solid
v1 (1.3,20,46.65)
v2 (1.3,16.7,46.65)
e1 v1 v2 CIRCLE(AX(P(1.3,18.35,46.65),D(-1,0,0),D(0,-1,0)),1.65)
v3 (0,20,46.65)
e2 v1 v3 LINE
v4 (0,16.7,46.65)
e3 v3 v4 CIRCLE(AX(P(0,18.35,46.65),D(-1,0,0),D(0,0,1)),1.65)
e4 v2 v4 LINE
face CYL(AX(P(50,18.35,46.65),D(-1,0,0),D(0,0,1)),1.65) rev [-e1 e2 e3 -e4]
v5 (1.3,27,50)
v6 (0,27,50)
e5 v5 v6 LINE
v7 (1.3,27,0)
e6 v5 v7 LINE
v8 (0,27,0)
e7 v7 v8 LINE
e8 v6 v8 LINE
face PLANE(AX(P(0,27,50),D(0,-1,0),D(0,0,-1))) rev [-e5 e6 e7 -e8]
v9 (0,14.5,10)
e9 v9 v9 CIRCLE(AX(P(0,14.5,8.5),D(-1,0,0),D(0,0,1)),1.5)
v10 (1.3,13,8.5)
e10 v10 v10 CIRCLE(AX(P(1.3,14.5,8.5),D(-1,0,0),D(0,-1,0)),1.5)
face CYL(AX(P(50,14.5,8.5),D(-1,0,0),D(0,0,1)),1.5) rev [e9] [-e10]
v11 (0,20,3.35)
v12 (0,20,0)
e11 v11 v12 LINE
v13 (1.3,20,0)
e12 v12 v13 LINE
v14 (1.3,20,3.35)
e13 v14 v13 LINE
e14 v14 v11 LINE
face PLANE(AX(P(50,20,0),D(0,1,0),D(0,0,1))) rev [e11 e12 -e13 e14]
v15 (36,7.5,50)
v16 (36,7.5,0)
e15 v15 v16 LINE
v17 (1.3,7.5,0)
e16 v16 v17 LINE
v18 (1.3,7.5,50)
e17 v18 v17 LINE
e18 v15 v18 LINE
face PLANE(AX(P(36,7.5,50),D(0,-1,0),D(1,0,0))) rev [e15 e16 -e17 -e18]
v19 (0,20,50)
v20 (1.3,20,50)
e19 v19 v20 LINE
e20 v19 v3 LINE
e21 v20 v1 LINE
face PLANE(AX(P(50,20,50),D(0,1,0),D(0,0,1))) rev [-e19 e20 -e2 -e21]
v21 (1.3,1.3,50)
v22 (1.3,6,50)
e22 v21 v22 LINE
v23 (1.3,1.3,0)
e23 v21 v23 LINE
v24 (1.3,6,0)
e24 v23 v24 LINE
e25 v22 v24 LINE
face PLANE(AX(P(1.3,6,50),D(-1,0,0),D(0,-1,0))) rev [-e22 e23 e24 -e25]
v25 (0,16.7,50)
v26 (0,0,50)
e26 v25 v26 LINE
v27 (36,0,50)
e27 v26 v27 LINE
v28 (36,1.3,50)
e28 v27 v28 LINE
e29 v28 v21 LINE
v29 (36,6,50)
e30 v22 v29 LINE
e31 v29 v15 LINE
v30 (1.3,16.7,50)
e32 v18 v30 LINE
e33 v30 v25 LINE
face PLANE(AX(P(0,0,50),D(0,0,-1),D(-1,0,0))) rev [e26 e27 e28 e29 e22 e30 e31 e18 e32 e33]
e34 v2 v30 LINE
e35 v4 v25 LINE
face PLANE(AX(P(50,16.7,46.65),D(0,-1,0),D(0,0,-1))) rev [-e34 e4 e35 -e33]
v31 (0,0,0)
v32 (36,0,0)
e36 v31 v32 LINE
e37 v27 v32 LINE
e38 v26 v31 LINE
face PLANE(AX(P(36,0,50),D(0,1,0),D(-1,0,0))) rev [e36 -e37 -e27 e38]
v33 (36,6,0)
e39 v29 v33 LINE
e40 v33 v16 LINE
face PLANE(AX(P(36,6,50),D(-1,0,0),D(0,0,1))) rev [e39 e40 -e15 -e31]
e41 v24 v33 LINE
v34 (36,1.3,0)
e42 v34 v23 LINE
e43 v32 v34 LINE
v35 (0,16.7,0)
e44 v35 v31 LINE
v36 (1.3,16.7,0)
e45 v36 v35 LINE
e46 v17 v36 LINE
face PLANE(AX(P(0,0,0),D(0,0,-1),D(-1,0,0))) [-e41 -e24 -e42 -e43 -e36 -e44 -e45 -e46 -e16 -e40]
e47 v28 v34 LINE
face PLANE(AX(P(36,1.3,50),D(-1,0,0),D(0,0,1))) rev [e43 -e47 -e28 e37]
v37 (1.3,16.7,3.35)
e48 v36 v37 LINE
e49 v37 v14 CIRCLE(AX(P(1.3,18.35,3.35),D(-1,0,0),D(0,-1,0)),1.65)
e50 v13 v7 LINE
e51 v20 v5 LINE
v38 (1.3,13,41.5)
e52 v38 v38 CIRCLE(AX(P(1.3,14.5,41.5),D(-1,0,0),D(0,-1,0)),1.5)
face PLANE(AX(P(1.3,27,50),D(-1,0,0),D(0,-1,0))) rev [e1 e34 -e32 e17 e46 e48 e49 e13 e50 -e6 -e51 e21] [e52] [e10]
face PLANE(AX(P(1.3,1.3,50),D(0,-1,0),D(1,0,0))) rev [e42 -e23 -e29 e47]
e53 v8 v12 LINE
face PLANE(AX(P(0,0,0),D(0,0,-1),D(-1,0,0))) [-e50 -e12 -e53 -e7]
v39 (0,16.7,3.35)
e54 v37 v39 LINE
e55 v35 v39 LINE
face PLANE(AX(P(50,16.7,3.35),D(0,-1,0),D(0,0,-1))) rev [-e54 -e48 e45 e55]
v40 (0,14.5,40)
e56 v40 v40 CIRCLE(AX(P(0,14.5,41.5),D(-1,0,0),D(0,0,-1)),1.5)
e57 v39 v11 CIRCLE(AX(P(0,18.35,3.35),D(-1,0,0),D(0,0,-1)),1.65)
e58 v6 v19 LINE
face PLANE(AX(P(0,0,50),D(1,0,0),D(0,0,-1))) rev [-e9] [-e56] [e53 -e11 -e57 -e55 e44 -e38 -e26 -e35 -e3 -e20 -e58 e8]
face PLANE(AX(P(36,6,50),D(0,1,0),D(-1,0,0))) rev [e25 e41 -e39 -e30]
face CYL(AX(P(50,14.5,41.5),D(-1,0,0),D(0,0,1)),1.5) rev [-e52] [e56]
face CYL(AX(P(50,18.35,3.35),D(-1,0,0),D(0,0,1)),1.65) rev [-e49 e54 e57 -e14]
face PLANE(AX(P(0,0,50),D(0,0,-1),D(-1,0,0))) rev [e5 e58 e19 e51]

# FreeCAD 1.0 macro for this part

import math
import FreeCAD as App
import Part
import Sketcher
from FreeCAD import Vector
Q = App.Units.Quantity

doc = App.newDocument("Part")
body = doc.addObject("PartDesign::Body", "Body")

# Sketch on XY plane
sketch1 = body.newObject("Sketcher::SketchObject", "Sketch")
sketch1.AttachmentSupport = (doc.getObject("XY_Plane"), [""])
sketch1.MapMode = "FlatFace"
sketch1.addGeometry([
    Part.LineSegment(Vector(0, 27, 0), Vector(0, 0, 0)),  # 0
    Part.LineSegment(Vector(0, 0, 0), Vector(36, 0, 0)),  # 1
    Part.LineSegment(Vector(36, 0, 0), Vector(36, 1.3, 0)),  # 2
    Part.LineSegment(Vector(36, 1.3, 0), Vector(1.3, 1.3, 0)),  # 3
    Part.LineSegment(Vector(1.3, 1.3, 0), Vector(1.3, 6, 0)),  # 4
    Part.LineSegment(Vector(1.3, 6, 0), Vector(36, 6, 0)),  # 5
    Part.LineSegment(Vector(36, 6, 0), Vector(36, 7.5, 0)),  # 6
    Part.LineSegment(Vector(36, 7.5, 0), Vector(1.3, 7.5, 0)),  # 7
    Part.LineSegment(Vector(1.3, 7.5, 0), Vector(1.3, 27, 0)),  # 8
    Part.LineSegment(Vector(1.3, 27, 0), Vector(0, 27, 0)),  # 9
], False)
sketch1.addConstraint([
    Sketcher.Constraint("Coincident", 0, 2, 1, 1),
    Sketcher.Constraint("Coincident", 1, 2, 2, 1),
    Sketcher.Constraint("Coincident", 2, 2, 3, 1),
    Sketcher.Constraint("Coincident", 3, 2, 4, 1),
    Sketcher.Constraint("Coincident", 4, 2, 5, 1),
    Sketcher.Constraint("Coincident", 5, 2, 6, 1),
    Sketcher.Constraint("Coincident", 6, 2, 7, 1),
    Sketcher.Constraint("Coincident", 7, 2, 8, 1),
    Sketcher.Constraint("Coincident", 8, 2, 9, 1),
    Sketcher.Constraint("Coincident", 9, 2, 0, 1),
    Sketcher.Constraint("Vertical", 0),
    Sketcher.Constraint("Horizontal", 1),
    Sketcher.Constraint("Vertical", 2),
    Sketcher.Constraint("Horizontal", 3),
    Sketcher.Constraint("Vertical", 4),
    Sketcher.Constraint("Horizontal", 5),
    Sketcher.Constraint("Vertical", 6),
    Sketcher.Constraint("Horizontal", 7),
    Sketcher.Constraint("Vertical", 8),
    Sketcher.Constraint("Horizontal", 9),
    Sketcher.Constraint("Coincident", 0, 2, -1, 1),
    Sketcher.Constraint("Vertical", 2, 2, 5, 2),
    Sketcher.Constraint("Vertical", 4, 2, 7, 2),
    Sketcher.Constraint("Equal", 9, 2),
    Sketcher.Constraint("DistanceX", 1, 1, 1, 2, Q("36 mm")),
    Sketcher.Constraint("DistanceY", 0, 2, 0, 1, Q("27 mm")),
    Sketcher.Constraint("DistanceX", 3, 2, 3, 1, Q("34.7 mm")),
    Sketcher.Constraint("DistanceY", 4, 1, 4, 2, Q("4.7 mm")),
    Sketcher.Constraint("DistanceY", 6, 1, 6, 2, Q("1.5 mm")),
])
pad1 = body.newObject("PartDesign::Pad", "Pad")
pad1.Profile = sketch1
pad1.Length = 50

# Sketch on YZ plane
sketch2 = body.newObject("Sketcher::SketchObject", "Sketch001")
sketch2.AttachmentSupport = (doc.getObject("YZ_Plane"), [""])
sketch2.MapMode = "FlatFace"
sketch2.addGeometry([
    Part.Circle(Vector(14.5, 8.5, 0), Vector(0, 0, 1), 1.5),  # 0
    Part.Circle(Vector(14.5, 41.5, 0), Vector(0, 0, 1), 1.5),  # 1
    Part.LineSegment(Vector(20, 3.4, 0), Vector(20, 0, 0)),  # 2
    Part.LineSegment(Vector(20, 0, 0), Vector(16.7, 0, 0)),  # 3
    Part.LineSegment(Vector(16.7, 0, 0), Vector(16.7, 3.4, 0)),  # 4
    Part.ArcOfCircle(Part.Circle(Vector(18.4, 3.4, 0), Vector(0, 0, 1), 1.6), math.radians(0), math.radians(180)),  # 5
    Part.LineSegment(Vector(16.7, 50, 0), Vector(20, 50, 0)),  # 6
    Part.LineSegment(Vector(20, 50, 0), Vector(20, 46.6, 0)),  # 7
    Part.ArcOfCircle(Part.Circle(Vector(18.4, 46.6, 0), Vector(0, 0, 1), 1.6), math.radians(180), math.radians(360)),  # 8
    Part.LineSegment(Vector(16.7, 46.6, 0), Vector(16.7, 50, 0)),  # 9
], False)
sketch2.addConstraint([
    Sketcher.Constraint("Coincident", 2, 2, 3, 1),
    Sketcher.Constraint("Coincident", 3, 2, 4, 1),
    Sketcher.Constraint("Tangent", 4, 2, 5, 2),
    Sketcher.Constraint("Tangent", 5, 1, 2, 1),
    Sketcher.Constraint("Coincident", 6, 2, 7, 1),
    Sketcher.Constraint("Tangent", 7, 2, 8, 2),
    Sketcher.Constraint("Tangent", 8, 1, 9, 1),
    Sketcher.Constraint("Coincident", 9, 2, 6, 1),
    Sketcher.Constraint("Vertical", 2),
    Sketcher.Constraint("Horizontal", 3),
    Sketcher.Constraint("Vertical", 4),
    Sketcher.Constraint("Horizontal", 6),
    Sketcher.Constraint("Vertical", 7),
    Sketcher.Constraint("Vertical", 9),
    Sketcher.Constraint("Equal", 0, 1),
    Sketcher.Constraint("Equal", 5, 8),
    Sketcher.Constraint("PointOnObject", 2, 2, -1),
    Sketcher.Constraint("Vertical", 0, 3, 1, 3),
    Sketcher.Constraint("Vertical", 5, 3, 8, 3),
    Sketcher.Constraint("Equal", 4, 7),
    Sketcher.Constraint("Diameter", 0, Q("3 mm")),
    Sketcher.Constraint("Radius", 5, Q("1.65 mm")),
    Sketcher.Constraint("DistanceX", -1, 1, 2, 2, Q("20 mm")),
    Sketcher.Constraint("DistanceY", -1, 1, 6, 2, Q("50 mm")),
    Sketcher.Constraint("DistanceY", 0, 3, 1, 3, Q("33 mm")),
    Sketcher.Constraint("DistanceY", 2, 2, 2, 1, Q("3.35 mm")),
    Sketcher.Constraint("DistanceX", -1, 1, 0, 3, Q("14.5 mm")),
    Sketcher.Constraint("DistanceY", -1, 1, 0, 3, Q("8.5 mm")),
])
pocket1 = body.newObject("PartDesign::Pocket", "Pocket")
pocket1.Profile = sketch2
pocket1.Length = 50
pocket1.Reversed = True

doc.recompute()
